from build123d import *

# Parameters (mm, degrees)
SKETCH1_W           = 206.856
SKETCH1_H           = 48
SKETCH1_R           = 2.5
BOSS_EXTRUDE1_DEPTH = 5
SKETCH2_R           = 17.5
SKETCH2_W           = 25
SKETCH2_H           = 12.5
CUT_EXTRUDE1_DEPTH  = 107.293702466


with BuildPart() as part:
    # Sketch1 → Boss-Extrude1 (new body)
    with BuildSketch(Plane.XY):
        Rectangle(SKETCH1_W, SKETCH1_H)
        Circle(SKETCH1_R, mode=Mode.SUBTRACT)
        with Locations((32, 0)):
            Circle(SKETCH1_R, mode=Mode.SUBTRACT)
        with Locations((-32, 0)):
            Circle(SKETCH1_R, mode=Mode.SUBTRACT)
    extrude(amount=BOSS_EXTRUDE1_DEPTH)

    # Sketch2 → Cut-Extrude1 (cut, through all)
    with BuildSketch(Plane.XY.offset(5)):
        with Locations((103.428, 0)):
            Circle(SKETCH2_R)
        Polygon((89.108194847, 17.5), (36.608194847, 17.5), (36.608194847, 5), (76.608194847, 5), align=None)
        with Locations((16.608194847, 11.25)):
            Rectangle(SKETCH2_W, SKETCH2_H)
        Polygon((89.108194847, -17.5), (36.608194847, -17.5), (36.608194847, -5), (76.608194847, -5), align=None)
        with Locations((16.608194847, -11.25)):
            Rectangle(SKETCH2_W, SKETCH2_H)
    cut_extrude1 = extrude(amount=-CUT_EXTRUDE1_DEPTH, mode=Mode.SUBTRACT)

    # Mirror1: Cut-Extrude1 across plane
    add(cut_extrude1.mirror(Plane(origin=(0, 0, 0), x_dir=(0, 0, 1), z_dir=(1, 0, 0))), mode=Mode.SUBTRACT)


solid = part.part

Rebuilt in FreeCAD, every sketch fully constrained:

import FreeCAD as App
import Part
import Sketcher

doc = App.newDocument("Part")
body = doc.addObject("PartDesign::Body", "Body")

sketch1 = body.newObject("Sketcher::SketchObject", "Sketch")
sketch1.AttachmentSupport = (doc.getObject("XY_Plane"), [""])
sketch1.MapMode = "FlatFace"
sketch1.addGeometry([
    Part.LineSegment(App.Vector(-103.4, 24, 0), App.Vector(-103.4, -24, 0)),
    Part.LineSegment(App.Vector(-103.4, -24, 0), App.Vector(103.4, -24, 0)),
    Part.LineSegment(App.Vector(103.4, -24, 0), App.Vector(103.4, 24, 0)),
    Part.LineSegment(App.Vector(103.4, 24, 0), App.Vector(-103.4, 24, 0)),
    Part.Circle(App.Vector(-32, 0, 0), App.Vector(0, 0, 1), 2.5),
    Part.Circle(App.Vector(0, 0, 0), App.Vector(0, 0, 1), 2.5),
    Part.Circle(App.Vector(32, 0, 0), App.Vector(0, 0, 1), 2.5),
], False)
sketch1.addConstraint([
    Sketcher.Constraint("Coincident", 0, 2, 1, 1),
    Sketcher.Constraint("Coincident", 1, 2, 2, 1),
    Sketcher.Constraint("Coincident", 2, 2, 3, 1),
    Sketcher.Constraint("Coincident", 3, 2, 0, 1),
    Sketcher.Constraint("Vertical", 0),
    Sketcher.Constraint("Horizontal", 1),
    Sketcher.Constraint("Vertical", 2),
    Sketcher.Constraint("Horizontal", 3),
    Sketcher.Constraint("Coincident", 5, 3, -1, 1),
    Sketcher.Constraint("Equal", 4, 5),
    Sketcher.Constraint("Equal", 5, 6),
    Sketcher.Constraint("Symmetric", 4, 3, 6, 3, -1, 1),
    Sketcher.Constraint("Symmetric", 0, 2, 2, 2, -1, 1),
    Sketcher.Constraint("PointOnObject", 4, 3, -1),
    Sketcher.Constraint("Diameter", 4, 5.0),
    Sketcher.Constraint("DistanceY", 0, 2, 0, 1, 48.0),
    Sketcher.Constraint("DistanceX", 4, 3, -1, 1, 32.0),
    Sketcher.Constraint("DistanceX", 1, 1, 1, 2, 206.856),
])
pad1 = body.newObject("PartDesign::Pad", "Pad")
pad1.Profile = sketch1
pad1.Length = 5

sketch2 = body.newObject("Sketcher::SketchObject", "Sketch001")
sketch2.AttachmentSupport = (doc.getObject("XY_Plane"), [""])
sketch2.MapMode = "FlatFace"
sketch2.AttachmentOffset = App.Placement(App.Vector(0, 0, 5), App.Rotation())
sketch2.addGeometry([
    Part.Circle(App.Vector(103, 0, 0), App.Vector(0, 0, 1), 18),
    Part.LineSegment(App.Vector(89, 18, 0), App.Vector(37, 18, 0)),
    Part.LineSegment(App.Vector(37, 18, 0), App.Vector(37, 5, 0)),
    Part.LineSegment(App.Vector(37, 5, 0), App.Vector(77, 5, 0)),
    Part.LineSegment(App.Vector(77, 5, 0), App.Vector(89, 18, 0)),
    Part.LineSegment(App.Vector(4, 18, 0), App.Vector(4, 5, 0)),
    Part.LineSegment(App.Vector(4, 5, 0), App.Vector(29, 5, 0)),
    Part.LineSegment(App.Vector(29, 5, 0), App.Vector(29, 18, 0)),
    Part.LineSegment(App.Vector(29, 18, 0), App.Vector(4, 18, 0)),
    Part.LineSegment(App.Vector(37, -18, 0), App.Vector(89, -18, 0)),
    Part.LineSegment(App.Vector(89, -18, 0), App.Vector(77, -5, 0)),
    Part.LineSegment(App.Vector(77, -5, 0), App.Vector(37, -5, 0)),
    Part.LineSegment(App.Vector(37, -5, 0), App.Vector(37, -18, 0)),
    Part.LineSegment(App.Vector(4, -5, 0), App.Vector(4, -18, 0)),
    Part.LineSegment(App.Vector(4, -18, 0), App.Vector(29, -18, 0)),
    Part.LineSegment(App.Vector(29, -18, 0), App.Vector(29, -5, 0)),
    Part.LineSegment(App.Vector(29, -5, 0), App.Vector(4, -5, 0)),
], False)
sketch2.addConstraint([
    Sketcher.Constraint("Coincident", 1, 2, 2, 1),
    Sketcher.Constraint("Coincident", 2, 2, 3, 1),
    Sketcher.Constraint("Coincident", 3, 2, 4, 1),
    Sketcher.Constraint("Coincident", 4, 2, 1, 1),
    Sketcher.Constraint("Coincident", 5, 2, 6, 1),
    Sketcher.Constraint("Coincident", 6, 2, 7, 1),
    Sketcher.Constraint("Coincident", 7, 2, 8, 1),
    Sketcher.Constraint("Coincident", 8, 2, 5, 1),
    Sketcher.Constraint("Coincident", 9, 2, 10, 1),
    Sketcher.Constraint("Coincident", 10, 2, 11, 1),
    Sketcher.Constraint("Coincident", 11, 2, 12, 1),
    Sketcher.Constraint("Coincident", 12, 2, 9, 1),
    Sketcher.Constraint("Coincident", 13, 2, 14, 1),
    Sketcher.Constraint("Coincident", 14, 2, 15, 1),
    Sketcher.Constraint("Coincident", 15, 2, 16, 1),
    Sketcher.Constraint("Coincident", 16, 2, 13, 1),
    Sketcher.Constraint("Horizontal", 1),
    Sketcher.Constraint("Vertical", 2),
    Sketcher.Constraint("Horizontal", 3),
    Sketcher.Constraint("Vertical", 5),
    Sketcher.Constraint("Horizontal", 6),
    Sketcher.Constraint("Vertical", 7),
    Sketcher.Constraint("Horizontal", 8),
    Sketcher.Constraint("Horizontal", 9),
    Sketcher.Constraint("Horizontal", 11),
    Sketcher.Constraint("Vertical", 12),
    Sketcher.Constraint("Vertical", 13),
    Sketcher.Constraint("Horizontal", 14),
    Sketcher.Constraint("Vertical", 15),
    Sketcher.Constraint("Horizontal", 16),
    Sketcher.Constraint("Symmetric", 4, 2, 9, 2, -1),
    Sketcher.Constraint("Symmetric", 3, 2, 10, 2, -1),
    Sketcher.Constraint("Symmetric", 8, 2, 13, 2, -1),
    Sketcher.Constraint("Symmetric", 6, 2, 15, 2, -1),
    Sketcher.Constraint("PointOnObject", 0, 3, -1),
    Sketcher.Constraint("Perpendicular", 4, 10),
    Sketcher.Constraint("Horizontal", 3, 2, 5, 2),
    Sketcher.Constraint("Horizontal", 4, 2, 7, 2),
    Sketcher.Constraint("Vertical", 2, 2, 11, 2),
    Sketcher.Constraint("Diameter", 0, 35.0),
    Sketcher.Constraint("DistanceX", 3, 1, 3, 2, 40.0),
    Sketcher.Constraint("DistanceX", 6, 1, 6, 2, 25.0),
    Sketcher.Constraint("DistanceX", 1, 2, 1, 1, 52.5),
    Sketcher.Constraint("DistanceY", -1, 1, 2, 2, 5.0),
    Sketcher.Constraint("DistanceX", 5, 2, 4, 2, 85.0),
    Sketcher.Constraint("DistanceX", -1, 1, 0, 3, 103.428),
    Sketcher.Constraint("DistanceX", -1, 1, 1, 2, 36.608195),
])
pocket1 = body.newObject("PartDesign::Pocket", "Pocket")
pocket1.Profile = sketch2
pocket1.Type = "ThroughAll"
doc.recompute()

mirrored = body.newObject("PartDesign::Mirrored", "Mirrored")
mirrored.Originals = [pocket1]
mirrored.MirrorPlane = (doc.getObject("YZ_Plane"), [""])
body.Tip = mirrored

doc.recompute()
